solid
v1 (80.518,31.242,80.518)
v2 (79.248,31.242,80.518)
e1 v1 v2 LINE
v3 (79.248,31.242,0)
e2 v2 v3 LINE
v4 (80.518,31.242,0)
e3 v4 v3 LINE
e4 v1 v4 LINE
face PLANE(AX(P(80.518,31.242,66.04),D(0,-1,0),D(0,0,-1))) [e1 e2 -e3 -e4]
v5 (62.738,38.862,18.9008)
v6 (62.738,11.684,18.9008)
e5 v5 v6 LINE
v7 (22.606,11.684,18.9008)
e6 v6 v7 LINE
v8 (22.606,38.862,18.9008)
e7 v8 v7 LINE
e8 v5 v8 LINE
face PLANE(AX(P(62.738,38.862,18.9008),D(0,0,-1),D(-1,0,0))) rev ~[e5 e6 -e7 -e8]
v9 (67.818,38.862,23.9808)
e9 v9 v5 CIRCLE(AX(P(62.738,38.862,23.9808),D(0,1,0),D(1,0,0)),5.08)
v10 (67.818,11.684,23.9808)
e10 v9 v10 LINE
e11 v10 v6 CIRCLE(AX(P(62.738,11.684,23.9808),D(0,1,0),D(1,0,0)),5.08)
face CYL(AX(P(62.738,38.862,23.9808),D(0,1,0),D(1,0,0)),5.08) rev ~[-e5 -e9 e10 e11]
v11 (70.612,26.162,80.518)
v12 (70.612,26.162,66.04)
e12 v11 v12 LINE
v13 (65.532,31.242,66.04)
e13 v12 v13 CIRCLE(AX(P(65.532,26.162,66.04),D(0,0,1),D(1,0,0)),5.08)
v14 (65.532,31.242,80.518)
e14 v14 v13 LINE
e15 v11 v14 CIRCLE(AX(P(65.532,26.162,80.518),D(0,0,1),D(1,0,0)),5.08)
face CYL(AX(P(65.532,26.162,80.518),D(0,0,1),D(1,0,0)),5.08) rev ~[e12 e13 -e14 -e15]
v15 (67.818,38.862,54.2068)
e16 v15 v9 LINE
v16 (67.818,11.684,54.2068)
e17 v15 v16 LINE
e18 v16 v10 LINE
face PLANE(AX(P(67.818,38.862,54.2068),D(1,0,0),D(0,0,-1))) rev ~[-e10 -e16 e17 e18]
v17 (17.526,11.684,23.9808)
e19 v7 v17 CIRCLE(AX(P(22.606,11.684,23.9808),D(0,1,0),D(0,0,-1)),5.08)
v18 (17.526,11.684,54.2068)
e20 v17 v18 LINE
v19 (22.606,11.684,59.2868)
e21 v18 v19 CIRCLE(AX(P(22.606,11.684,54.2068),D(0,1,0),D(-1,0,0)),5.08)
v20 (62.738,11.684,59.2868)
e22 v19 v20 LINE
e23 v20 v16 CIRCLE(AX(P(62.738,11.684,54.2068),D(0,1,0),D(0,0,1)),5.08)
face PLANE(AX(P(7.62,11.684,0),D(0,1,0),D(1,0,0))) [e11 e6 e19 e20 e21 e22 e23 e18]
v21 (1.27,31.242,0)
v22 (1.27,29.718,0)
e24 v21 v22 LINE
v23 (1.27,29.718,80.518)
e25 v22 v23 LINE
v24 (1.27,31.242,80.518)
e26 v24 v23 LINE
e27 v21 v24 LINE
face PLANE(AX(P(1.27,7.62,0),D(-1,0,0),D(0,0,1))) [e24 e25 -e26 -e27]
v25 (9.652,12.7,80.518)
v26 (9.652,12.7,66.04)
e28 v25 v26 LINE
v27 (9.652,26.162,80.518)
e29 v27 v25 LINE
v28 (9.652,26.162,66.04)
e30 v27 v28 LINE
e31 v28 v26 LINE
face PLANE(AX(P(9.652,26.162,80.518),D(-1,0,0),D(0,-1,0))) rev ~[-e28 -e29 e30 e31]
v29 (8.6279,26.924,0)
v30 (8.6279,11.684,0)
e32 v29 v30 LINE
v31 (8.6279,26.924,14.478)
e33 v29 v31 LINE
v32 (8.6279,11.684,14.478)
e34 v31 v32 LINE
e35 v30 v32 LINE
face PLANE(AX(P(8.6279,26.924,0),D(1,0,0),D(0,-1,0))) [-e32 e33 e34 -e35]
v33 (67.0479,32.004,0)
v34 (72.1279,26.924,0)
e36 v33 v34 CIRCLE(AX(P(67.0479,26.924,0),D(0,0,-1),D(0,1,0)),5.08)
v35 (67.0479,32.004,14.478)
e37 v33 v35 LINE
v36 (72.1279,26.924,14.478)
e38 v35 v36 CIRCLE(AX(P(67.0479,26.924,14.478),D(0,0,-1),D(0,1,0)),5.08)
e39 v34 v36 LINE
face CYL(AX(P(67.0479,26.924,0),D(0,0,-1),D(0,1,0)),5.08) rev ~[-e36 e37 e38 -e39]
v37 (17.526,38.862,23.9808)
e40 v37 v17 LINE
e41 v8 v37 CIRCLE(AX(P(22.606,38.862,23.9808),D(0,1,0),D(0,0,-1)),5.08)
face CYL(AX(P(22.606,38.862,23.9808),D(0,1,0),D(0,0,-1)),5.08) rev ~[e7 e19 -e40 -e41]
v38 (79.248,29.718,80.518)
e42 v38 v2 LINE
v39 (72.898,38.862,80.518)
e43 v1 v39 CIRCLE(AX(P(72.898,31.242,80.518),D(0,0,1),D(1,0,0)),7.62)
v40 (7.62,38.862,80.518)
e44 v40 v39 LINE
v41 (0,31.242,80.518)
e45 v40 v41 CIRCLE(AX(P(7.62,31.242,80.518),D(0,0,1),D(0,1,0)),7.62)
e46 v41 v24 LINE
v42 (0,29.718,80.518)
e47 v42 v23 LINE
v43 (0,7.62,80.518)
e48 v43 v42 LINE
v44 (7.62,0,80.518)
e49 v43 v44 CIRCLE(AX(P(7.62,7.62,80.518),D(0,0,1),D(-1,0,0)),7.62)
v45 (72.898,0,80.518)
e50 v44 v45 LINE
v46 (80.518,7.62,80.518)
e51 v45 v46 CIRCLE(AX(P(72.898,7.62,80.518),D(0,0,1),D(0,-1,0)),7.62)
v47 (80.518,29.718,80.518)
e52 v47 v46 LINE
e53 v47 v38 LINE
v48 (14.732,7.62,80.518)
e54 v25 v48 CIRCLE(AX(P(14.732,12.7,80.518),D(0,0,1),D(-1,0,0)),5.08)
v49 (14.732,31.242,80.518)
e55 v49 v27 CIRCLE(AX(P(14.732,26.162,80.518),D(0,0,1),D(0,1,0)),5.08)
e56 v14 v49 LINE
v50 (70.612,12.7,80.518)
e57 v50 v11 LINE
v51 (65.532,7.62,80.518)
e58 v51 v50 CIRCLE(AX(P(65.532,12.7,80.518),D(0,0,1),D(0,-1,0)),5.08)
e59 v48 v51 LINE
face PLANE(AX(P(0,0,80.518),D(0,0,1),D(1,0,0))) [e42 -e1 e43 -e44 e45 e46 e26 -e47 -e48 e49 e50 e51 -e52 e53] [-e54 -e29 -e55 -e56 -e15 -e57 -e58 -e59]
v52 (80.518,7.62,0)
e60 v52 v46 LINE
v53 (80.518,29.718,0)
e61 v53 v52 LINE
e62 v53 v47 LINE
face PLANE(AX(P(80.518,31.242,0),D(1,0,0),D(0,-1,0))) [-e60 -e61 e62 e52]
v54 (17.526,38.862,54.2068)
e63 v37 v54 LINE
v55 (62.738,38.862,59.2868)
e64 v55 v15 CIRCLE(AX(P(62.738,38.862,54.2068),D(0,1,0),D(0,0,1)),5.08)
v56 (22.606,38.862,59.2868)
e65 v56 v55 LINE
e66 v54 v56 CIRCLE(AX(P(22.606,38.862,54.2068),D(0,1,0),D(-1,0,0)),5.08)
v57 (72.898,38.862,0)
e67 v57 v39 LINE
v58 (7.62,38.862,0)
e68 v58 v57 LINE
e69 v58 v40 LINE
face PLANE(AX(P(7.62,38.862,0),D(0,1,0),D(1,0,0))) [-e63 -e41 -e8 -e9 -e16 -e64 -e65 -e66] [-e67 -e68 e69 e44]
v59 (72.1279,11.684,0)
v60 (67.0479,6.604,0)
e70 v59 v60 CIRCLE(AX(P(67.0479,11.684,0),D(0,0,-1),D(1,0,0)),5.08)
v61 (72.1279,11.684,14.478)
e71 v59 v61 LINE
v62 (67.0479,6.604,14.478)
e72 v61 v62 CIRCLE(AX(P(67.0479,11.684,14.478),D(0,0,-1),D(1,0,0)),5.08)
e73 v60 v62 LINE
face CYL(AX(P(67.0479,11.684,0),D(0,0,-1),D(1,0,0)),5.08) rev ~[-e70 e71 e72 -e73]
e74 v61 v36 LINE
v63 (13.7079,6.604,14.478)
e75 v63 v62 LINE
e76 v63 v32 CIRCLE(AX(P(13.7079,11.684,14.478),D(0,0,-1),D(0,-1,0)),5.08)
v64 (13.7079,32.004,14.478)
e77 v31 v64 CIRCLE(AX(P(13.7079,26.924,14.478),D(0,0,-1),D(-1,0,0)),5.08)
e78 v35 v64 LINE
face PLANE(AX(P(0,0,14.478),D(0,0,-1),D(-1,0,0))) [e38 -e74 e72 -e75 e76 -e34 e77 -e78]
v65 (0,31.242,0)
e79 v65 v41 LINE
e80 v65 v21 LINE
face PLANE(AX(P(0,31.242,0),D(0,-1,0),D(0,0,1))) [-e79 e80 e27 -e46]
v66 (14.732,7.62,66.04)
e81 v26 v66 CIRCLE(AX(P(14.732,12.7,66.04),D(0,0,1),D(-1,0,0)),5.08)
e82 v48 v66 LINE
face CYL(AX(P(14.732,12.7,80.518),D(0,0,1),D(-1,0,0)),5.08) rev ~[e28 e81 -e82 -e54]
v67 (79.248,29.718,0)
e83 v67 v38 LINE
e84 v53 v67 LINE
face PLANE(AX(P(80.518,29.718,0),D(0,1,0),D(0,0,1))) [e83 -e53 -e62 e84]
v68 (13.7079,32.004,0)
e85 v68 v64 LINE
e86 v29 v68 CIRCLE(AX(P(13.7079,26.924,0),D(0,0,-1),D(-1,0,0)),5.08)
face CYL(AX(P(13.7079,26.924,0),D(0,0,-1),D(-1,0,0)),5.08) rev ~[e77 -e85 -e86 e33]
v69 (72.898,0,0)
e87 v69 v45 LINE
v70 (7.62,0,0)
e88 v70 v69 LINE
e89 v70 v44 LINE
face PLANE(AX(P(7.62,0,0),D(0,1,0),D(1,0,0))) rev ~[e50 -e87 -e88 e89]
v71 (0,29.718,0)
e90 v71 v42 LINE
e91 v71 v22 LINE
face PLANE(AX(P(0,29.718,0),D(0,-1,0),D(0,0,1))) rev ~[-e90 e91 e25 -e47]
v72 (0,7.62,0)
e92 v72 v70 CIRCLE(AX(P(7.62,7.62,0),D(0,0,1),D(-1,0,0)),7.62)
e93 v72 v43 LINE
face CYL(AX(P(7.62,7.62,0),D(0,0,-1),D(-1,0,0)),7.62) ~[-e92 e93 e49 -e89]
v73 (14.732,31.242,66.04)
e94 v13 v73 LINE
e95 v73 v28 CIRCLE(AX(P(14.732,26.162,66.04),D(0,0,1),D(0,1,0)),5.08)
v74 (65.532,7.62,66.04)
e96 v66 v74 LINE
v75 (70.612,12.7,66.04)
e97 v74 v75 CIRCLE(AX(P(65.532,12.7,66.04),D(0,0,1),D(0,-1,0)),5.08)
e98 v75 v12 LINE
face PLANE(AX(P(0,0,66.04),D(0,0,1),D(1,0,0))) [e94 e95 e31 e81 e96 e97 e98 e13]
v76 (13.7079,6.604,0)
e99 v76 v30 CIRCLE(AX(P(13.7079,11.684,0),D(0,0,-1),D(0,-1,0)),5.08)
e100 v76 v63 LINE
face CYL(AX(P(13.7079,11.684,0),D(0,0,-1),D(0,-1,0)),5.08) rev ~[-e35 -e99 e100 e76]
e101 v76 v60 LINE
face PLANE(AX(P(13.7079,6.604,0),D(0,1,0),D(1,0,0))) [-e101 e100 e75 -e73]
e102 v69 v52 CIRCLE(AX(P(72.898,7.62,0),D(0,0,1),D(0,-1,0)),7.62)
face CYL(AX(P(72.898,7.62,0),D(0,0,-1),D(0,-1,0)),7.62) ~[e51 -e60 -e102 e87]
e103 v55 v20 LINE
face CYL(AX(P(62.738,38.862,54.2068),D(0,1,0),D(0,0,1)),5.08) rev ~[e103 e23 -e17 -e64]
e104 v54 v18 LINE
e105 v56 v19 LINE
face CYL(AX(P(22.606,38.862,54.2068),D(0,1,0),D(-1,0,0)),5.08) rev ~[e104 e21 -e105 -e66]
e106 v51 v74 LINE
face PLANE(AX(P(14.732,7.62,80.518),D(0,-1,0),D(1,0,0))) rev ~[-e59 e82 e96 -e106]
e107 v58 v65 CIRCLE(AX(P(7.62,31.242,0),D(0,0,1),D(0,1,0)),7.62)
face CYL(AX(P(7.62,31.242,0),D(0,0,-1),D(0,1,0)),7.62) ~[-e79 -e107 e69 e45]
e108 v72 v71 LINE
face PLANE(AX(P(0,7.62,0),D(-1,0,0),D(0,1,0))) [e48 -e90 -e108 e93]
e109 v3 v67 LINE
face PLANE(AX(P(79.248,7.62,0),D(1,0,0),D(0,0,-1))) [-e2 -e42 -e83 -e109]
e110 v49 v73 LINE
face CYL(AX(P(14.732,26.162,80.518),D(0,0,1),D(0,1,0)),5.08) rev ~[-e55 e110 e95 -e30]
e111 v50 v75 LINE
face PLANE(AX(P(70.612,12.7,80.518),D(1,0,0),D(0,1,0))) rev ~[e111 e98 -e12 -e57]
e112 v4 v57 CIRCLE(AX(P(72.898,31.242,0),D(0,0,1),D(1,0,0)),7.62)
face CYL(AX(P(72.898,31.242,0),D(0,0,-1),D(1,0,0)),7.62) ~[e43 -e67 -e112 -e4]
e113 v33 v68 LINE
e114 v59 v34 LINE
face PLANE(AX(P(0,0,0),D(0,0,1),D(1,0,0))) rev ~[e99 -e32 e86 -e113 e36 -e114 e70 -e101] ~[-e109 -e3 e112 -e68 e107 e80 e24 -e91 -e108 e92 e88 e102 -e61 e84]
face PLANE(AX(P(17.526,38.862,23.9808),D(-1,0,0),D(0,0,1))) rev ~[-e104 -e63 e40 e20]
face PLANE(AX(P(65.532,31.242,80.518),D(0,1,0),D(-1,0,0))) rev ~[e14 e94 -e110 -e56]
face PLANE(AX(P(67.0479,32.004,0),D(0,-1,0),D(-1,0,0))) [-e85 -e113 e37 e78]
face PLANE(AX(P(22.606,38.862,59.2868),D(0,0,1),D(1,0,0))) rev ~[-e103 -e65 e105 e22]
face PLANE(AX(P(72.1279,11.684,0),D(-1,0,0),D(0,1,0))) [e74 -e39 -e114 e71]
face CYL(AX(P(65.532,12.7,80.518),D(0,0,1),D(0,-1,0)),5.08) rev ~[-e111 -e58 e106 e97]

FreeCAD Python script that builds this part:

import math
import FreeCAD as App
import Part
import Sketcher
from FreeCAD import Vector
Q = App.Units.Quantity

doc = App.newDocument("Part")
body = doc.addObject("PartDesign::Body", "Body")

# Sketch on XY plane
sketch1 = body.newObject("Sketcher::SketchObject", "Sketch")
sketch1.AttachmentSupport = (doc.getObject("XY_Plane"), [""])
sketch1.MapMode = "FlatFace"
sketch1.addGeometry([
    Part.ArcOfCircle(Part.Circle(Vector(8, 8, 0), Vector(0, 0, 1), 8), math.radians(180), math.radians(270)),  # 0
    Part.LineSegment(Vector(8, 0, 0), Vector(73, 0, 0)),  # 1
    Part.ArcOfCircle(Part.Circle(Vector(73, 8, 0), Vector(0, 0, 1), 8), math.radians(-90), math.radians(0)),  # 2
    Part.LineSegment(Vector(81, 8, 0), Vector(81, 31, 0)),  # 3
    Part.ArcOfCircle(Part.Circle(Vector(73, 31, 0), Vector(0, 0, 1), 8), math.radians(0), math.radians(90)),  # 4
    Part.LineSegment(Vector(73, 39, 0), Vector(8, 39, 0)),  # 5
    Part.ArcOfCircle(Part.Circle(Vector(8, 31, 0), Vector(0, 0, 1), 8), math.radians(90), math.radians(180)),  # 6
    Part.LineSegment(Vector(0, 31, 0), Vector(0, 8, 0)),  # 7
], False)
sketch1.addConstraint([
    Sketcher.Constraint("Tangent", 0, 2, 1, 1),
    Sketcher.Constraint("Tangent", 1, 2, 2, 1),
    Sketcher.Constraint("Tangent", 2, 2, 3, 1),
    Sketcher.Constraint("Tangent", 3, 2, 4, 1),
    Sketcher.Constraint("Tangent", 4, 2, 5, 1),
    Sketcher.Constraint("Tangent", 5, 2, 6, 1),
    Sketcher.Constraint("Tangent", 6, 2, 7, 1),
    Sketcher.Constraint("Tangent", 7, 2, 0, 1),
    Sketcher.Constraint("Horizontal", 1),
    Sketcher.Constraint("Vertical", 3),
    Sketcher.Constraint("Horizontal", 5),
    Sketcher.Constraint("Vertical", 7),
    Sketcher.Constraint("Equal", 0, 2),
    Sketcher.Constraint("Equal", 2, 4),
    Sketcher.Constraint("Equal", 4, 6),
    Sketcher.Constraint("PointOnObject", 0, 2, -1),
    Sketcher.Constraint("PointOnObject", 6, 2, -2),
    Sketcher.Constraint("Radius", 0, Q("0.3 in")),
    Sketcher.Constraint("DistanceX", -1, 1, 2, 2, Q("3.17 in")),
    Sketcher.Constraint("DistanceY", -1, 1, 4, 2, Q("1.53 in")),
])
pad1 = body.newObject("PartDesign::Pad", "Pad")
pad1.Profile = sketch1
pad1.Length = Q("3.17 in")

# Sketch on XY plane
sketch2 = body.newObject("Sketcher::SketchObject", "Sketch001")
sketch2.AttachmentSupport = (doc.getObject("XY_Plane"), [""])
sketch2.MapMode = "FlatFace"
sketch2.AttachmentOffset = App.Placement(Vector(0, 0, 3.17 * 25.4), App.Rotation())
sketch2.addGeometry([
    Part.ArcOfCircle(Part.Circle(Vector(15, 13, 0), Vector(0, 0, 1), 5), math.radians(180), math.radians(270)),  # 0
    Part.LineSegment(Vector(15, 8, 0), Vector(66, 8, 0)),  # 1
    Part.ArcOfCircle(Part.Circle(Vector(66, 13, 0), Vector(0, 0, 1), 5), math.radians(-90), math.radians(0)),  # 2
    Part.LineSegment(Vector(71, 13, 0), Vector(71, 26, 0)),  # 3
    Part.ArcOfCircle(Part.Circle(Vector(66, 26, 0), Vector(0, 0, 1), 5), math.radians(0), math.radians(90)),  # 4
    Part.LineSegment(Vector(66, 31, 0), Vector(15, 31, 0)),  # 5
    Part.ArcOfCircle(Part.Circle(Vector(15, 26, 0), Vector(0, 0, 1), 5), math.radians(90), math.radians(180)),  # 6
    Part.LineSegment(Vector(10, 26, 0), Vector(10, 13, 0)),  # 7
], False)
sketch2.addConstraint([
    Sketcher.Constraint("Tangent", 0, 2, 1, 1),
    Sketcher.Constraint("Tangent", 1, 2, 2, 1),
    Sketcher.Constraint("Tangent", 2, 2, 3, 1),
    Sketcher.Constraint("Tangent", 3, 2, 4, 1),
    Sketcher.Constraint("Tangent", 4, 2, 5, 1),
    Sketcher.Constraint("Tangent", 5, 2, 6, 1),
    Sketcher.Constraint("Tangent", 6, 2, 7, 1),
    Sketcher.Constraint("Tangent", 7, 2, 0, 1),
    Sketcher.Constraint("Horizontal", 1),
    Sketcher.Constraint("Vertical", 3),
    Sketcher.Constraint("Horizontal", 5),
    Sketcher.Constraint("Vertical", 7),
    Sketcher.Constraint("Equal", 0, 2),
    Sketcher.Constraint("Equal", 2, 4),
    Sketcher.Constraint("Equal", 4, 6),
    Sketcher.Constraint("Radius", 0, Q("0.2 in")),
    Sketcher.Constraint("DistanceX", 1, 1, 1, 2, Q("2 in")),
    Sketcher.Constraint("DistanceY", 1, 2, 4, 2, Q("0.93 in")),
    Sketcher.Constraint("DistanceY", -1, 1, 0, 3, Q("0.5 in")),
    Sketcher.Constraint("DistanceX", -1, 1, 0, 3, Q("0.58 in")),
])
pocket1 = body.newObject("PartDesign::Pocket", "Pocket")
pocket1.Profile = sketch2
pocket1.Length = Q("0.57 in")

# Sketch on XZ plane
sketch3 = body.newObject("Sketcher::SketchObject", "Sketch002")
sketch3.AttachmentSupport = (doc.getObject("XZ_Plane"), [""])
sketch3.MapMode = "FlatFace"
sketch3.AttachmentOffset = App.Placement(Vector(0, 0, -1.53 * 25.4), App.Rotation())
sketch3.addGeometry([
    Part.ArcOfCircle(Part.Circle(Vector(63, 54, 0), Vector(0, 0, 1), 5), math.radians(0), math.radians(90)),  # 0
    Part.LineSegment(Vector(68, 54, 0), Vector(68, 24, 0)),  # 1
    Part.ArcOfCircle(Part.Circle(Vector(63, 24, 0), Vector(0, 0, 1), 5), math.radians(-90), math.radians(0)),  # 2
    Part.LineSegment(Vector(63, 19, 0), Vector(23, 19, 0)),  # 3
    Part.ArcOfCircle(Part.Circle(Vector(23, 24, 0), Vector(0, 0, 1), 5), math.radians(180), math.radians(270)),  # 4
    Part.LineSegment(Vector(18, 24, 0), Vector(18, 54, 0)),  # 5
    Part.ArcOfCircle(Part.Circle(Vector(23, 54, 0), Vector(0, 0, 1), 5), math.radians(90), math.radians(180)),  # 6
    Part.LineSegment(Vector(23, 59, 0), Vector(63, 59, 0)),  # 7
], False)
sketch3.addConstraint([
    Sketcher.Constraint("Tangent", 0, 1, 1, 1),
    Sketcher.Constraint("Tangent", 1, 2, 2, 2),
    Sketcher.Constraint("Tangent", 2, 1, 3, 1),
    Sketcher.Constraint("Tangent", 3, 2, 4, 2),
    Sketcher.Constraint("Tangent", 4, 1, 5, 1),
    Sketcher.Constraint("Tangent", 5, 2, 6, 2),
    Sketcher.Constraint("Tangent", 6, 1, 7, 1),
    Sketcher.Constraint("Tangent", 7, 2, 0, 2),
    Sketcher.Constraint("Vertical", 1),
    Sketcher.Constraint("Horizontal", 3),
    Sketcher.Constraint("Vertical", 5),
    Sketcher.Constraint("Horizontal", 7),
    Sketcher.Constraint("Equal", 0, 2),
    Sketcher.Constraint("Equal", 2, 4),
    Sketcher.Constraint("Equal", 4, 6),
    Sketcher.Constraint("Radius", 0, Q("0.2 in")),
    Sketcher.Constraint("DistanceY", 3, 2, 6, 1, Q("1.59 in")),
    Sketcher.Constraint("DistanceX", 3, 2, 3, 1, Q("1.58 in")),
    Sketcher.Constraint("DistanceX", -1, 1, 0, 3, Q("2.47 in")),
    Sketcher.Constraint("DistanceY", -1, 1, 0, 3, 54.2068),
])
pocket2 = body.newObject("PartDesign::Pocket", "Pocket001")
pocket2.Profile = sketch3
pocket2.Length = Q("1.07 in")
pocket2.Reversed = True

# Sketch on XY plane
sketch4 = body.newObject("Sketcher::SketchObject", "Sketch003")
sketch4.AttachmentSupport = (doc.getObject("XY_Plane"), [""])
sketch4.MapMode = "FlatFace"
sketch4.addGeometry([
    Part.LineSegment(Vector(9, 12, 0), Vector(9, 27, 0)),  # 0
    Part.ArcOfCircle(Part.Circle(Vector(14, 27, 0), Vector(0, 0, 1), 5), math.radians(90), math.radians(180)),  # 1
    Part.LineSegment(Vector(14, 32, 0), Vector(67, 32, 0)),  # 2
    Part.ArcOfCircle(Part.Circle(Vector(67, 27, 0), Vector(0, 0, 1), 5), math.radians(0), math.radians(90)),  # 3
    Part.LineSegment(Vector(72, 27, 0), Vector(72, 12, 0)),  # 4
    Part.ArcOfCircle(Part.Circle(Vector(67, 12, 0), Vector(0, 0, 1), 5), math.radians(-90), math.radians(0)),  # 5
    Part.LineSegment(Vector(67, 7, 0), Vector(14, 7, 0)),  # 6
    Part.ArcOfCircle(Part.Circle(Vector(14, 12, 0), Vector(0, 0, 1), 5), math.radians(180), math.radians(270)),  # 7
], False)
sketch4.addConstraint([
    Sketcher.Constraint("Tangent", 0, 2, 1, 2),
    Sketcher.Constraint("Tangent", 1, 1, 2, 1),
    Sketcher.Constraint("Tangent", 2, 2, 3, 2),
    Sketcher.Constraint("Tangent", 3, 1, 4, 1),
    Sketcher.Constraint("Tangent", 4, 2, 5, 2),
    Sketcher.Constraint("Tangent", 5, 1, 6, 1),
    Sketcher.Constraint("Tangent", 6, 2, 7, 2),
    Sketcher.Constraint("Tangent", 7, 1, 0, 1),
    Sketcher.Constraint("Vertical", 0),
    Sketcher.Constraint("Horizontal", 2),
    Sketcher.Constraint("Vertical", 4),
    Sketcher.Constraint("Horizontal", 6),
    Sketcher.Constraint("Equal", 1, 3),
    Sketcher.Constraint("Equal", 3, 5),
    Sketcher.Constraint("Equal", 5, 7),
    Sketcher.Constraint("Radius", 1, Q("0.2 in")),
    Sketcher.Constraint("DistanceY", 5, 1, 2, 2, Q("1 in")),
    Sketcher.Constraint("DistanceX", 2, 1, 2, 2, Q("2.1 in")),
    Sketcher.Constraint("DistanceY", -1, 1, 1, 3, Q("1.06 in")),
    Sketcher.Constraint("DistanceX", -1, 1, 1, 3, 13.708),
])
pocket3 = body.newObject("PartDesign::Pocket", "Pocket002")
pocket3.Profile = sketch4
pocket3.Length = Q("0.57 in")
pocket3.Reversed = True

# Sketch on YZ plane
sketch5 = body.newObject("Sketcher::SketchObject", "Sketch004")
sketch5.AttachmentSupport = (doc.getObject("YZ_Plane"), [""])
sketch5.MapMode = "FlatFace"
sketch5.AttachmentOffset = App.Placement(Vector(0, 0, 3.17 * 25.4), App.Rotation())
sketch5.addGeometry([
    Part.LineSegment(Vector(31.2, 0, 0), Vector(31.2, 80.5, 0)),
    Part.LineSegment(Vector(31.2, 80.5, 0), Vector(29.7, 80.5, 0)),
    Part.LineSegment(Vector(29.7, 80.5, 0), Vector(29.7, 0, 0)),
    Part.LineSegment(Vector(29.7, 0, 0), Vector(31.2, 0, 0)),
], False)
sketch5.addConstraint([
    Sketcher.Constraint("Coincident", 0, 2, 1, 1),
    Sketcher.Constraint("Coincident", 1, 2, 2, 1),
    Sketcher.Constraint("Coincident", 2, 2, 3, 1),
    Sketcher.Constraint("Coincident", 3, 2, 0, 1),
    Sketcher.Constraint("Vertical", 0),
    Sketcher.Constraint("Horizontal", 1),
    Sketcher.Constraint("Vertical", 2),
    Sketcher.Constraint("Horizontal", 3),
    Sketcher.Constraint("PointOnObject", 2, 2, -1),
    Sketcher.Constraint("DistanceX", 1, 2, 1, 1, Q("0.06 in")),
    Sketcher.Constraint("DistanceY", 0, 1, 0, 2, Q("3.17 in")),
    Sketcher.Constraint("DistanceX", -1, 1, 0, 2, Q("1.23 in")),
])
pocket4 = body.newObject("PartDesign::Pocket", "Pocket003")
pocket4.Profile = sketch5
pocket4.Length = Q("0.05 in")

# Sketch on YZ plane
sketch6 = body.newObject("Sketcher::SketchObject", "Sketch005")
sketch6.AttachmentSupport = (doc.getObject("YZ_Plane"), [""])
sketch6.MapMode = "FlatFace"
sketch6.addGeometry([
    Part.LineSegment(Vector(31.2, 80.5, 0), Vector(31.2, 0, 0)),
    Part.LineSegment(Vector(31.2, 0, 0), Vector(29.7, 0, 0)),
    Part.LineSegment(Vector(29.7, 0, 0), Vector(29.7, 80.5, 0)),
    Part.LineSegment(Vector(29.7, 80.5, 0), Vector(31.2, 80.5, 0)),
], False)
sketch6.addConstraint([
    Sketcher.Constraint("Coincident", 0, 2, 1, 1),
    Sketcher.Constraint("Coincident", 1, 2, 2, 1),
    Sketcher.Constraint("Coincident", 2, 2, 3, 1),
    Sketcher.Constraint("Coincident", 3, 2, 0, 1),
    Sketcher.Constraint("Vertical", 0),
    Sketcher.Constraint("Horizontal", 1),
    Sketcher.Constraint("Vertical", 2),
    Sketcher.Constraint("Horizontal", 3),
    Sketcher.Constraint("PointOnObject", 0, 2, -1),
    Sketcher.Constraint("DistanceX", 1, 2, 1, 1, Q("0.06 in")),
    Sketcher.Constraint("DistanceY", 0, 2, 0, 1, Q("3.17 in")),
    Sketcher.Constraint("DistanceX", -1, 1, 0, 2, Q("1.23 in")),
])
pocket5 = body.newObject("PartDesign::Pocket", "Pocket004")
pocket5.Profile = sketch6
pocket5.Length = Q("0.05 in")
pocket5.Reversed = True

doc.recompute()
